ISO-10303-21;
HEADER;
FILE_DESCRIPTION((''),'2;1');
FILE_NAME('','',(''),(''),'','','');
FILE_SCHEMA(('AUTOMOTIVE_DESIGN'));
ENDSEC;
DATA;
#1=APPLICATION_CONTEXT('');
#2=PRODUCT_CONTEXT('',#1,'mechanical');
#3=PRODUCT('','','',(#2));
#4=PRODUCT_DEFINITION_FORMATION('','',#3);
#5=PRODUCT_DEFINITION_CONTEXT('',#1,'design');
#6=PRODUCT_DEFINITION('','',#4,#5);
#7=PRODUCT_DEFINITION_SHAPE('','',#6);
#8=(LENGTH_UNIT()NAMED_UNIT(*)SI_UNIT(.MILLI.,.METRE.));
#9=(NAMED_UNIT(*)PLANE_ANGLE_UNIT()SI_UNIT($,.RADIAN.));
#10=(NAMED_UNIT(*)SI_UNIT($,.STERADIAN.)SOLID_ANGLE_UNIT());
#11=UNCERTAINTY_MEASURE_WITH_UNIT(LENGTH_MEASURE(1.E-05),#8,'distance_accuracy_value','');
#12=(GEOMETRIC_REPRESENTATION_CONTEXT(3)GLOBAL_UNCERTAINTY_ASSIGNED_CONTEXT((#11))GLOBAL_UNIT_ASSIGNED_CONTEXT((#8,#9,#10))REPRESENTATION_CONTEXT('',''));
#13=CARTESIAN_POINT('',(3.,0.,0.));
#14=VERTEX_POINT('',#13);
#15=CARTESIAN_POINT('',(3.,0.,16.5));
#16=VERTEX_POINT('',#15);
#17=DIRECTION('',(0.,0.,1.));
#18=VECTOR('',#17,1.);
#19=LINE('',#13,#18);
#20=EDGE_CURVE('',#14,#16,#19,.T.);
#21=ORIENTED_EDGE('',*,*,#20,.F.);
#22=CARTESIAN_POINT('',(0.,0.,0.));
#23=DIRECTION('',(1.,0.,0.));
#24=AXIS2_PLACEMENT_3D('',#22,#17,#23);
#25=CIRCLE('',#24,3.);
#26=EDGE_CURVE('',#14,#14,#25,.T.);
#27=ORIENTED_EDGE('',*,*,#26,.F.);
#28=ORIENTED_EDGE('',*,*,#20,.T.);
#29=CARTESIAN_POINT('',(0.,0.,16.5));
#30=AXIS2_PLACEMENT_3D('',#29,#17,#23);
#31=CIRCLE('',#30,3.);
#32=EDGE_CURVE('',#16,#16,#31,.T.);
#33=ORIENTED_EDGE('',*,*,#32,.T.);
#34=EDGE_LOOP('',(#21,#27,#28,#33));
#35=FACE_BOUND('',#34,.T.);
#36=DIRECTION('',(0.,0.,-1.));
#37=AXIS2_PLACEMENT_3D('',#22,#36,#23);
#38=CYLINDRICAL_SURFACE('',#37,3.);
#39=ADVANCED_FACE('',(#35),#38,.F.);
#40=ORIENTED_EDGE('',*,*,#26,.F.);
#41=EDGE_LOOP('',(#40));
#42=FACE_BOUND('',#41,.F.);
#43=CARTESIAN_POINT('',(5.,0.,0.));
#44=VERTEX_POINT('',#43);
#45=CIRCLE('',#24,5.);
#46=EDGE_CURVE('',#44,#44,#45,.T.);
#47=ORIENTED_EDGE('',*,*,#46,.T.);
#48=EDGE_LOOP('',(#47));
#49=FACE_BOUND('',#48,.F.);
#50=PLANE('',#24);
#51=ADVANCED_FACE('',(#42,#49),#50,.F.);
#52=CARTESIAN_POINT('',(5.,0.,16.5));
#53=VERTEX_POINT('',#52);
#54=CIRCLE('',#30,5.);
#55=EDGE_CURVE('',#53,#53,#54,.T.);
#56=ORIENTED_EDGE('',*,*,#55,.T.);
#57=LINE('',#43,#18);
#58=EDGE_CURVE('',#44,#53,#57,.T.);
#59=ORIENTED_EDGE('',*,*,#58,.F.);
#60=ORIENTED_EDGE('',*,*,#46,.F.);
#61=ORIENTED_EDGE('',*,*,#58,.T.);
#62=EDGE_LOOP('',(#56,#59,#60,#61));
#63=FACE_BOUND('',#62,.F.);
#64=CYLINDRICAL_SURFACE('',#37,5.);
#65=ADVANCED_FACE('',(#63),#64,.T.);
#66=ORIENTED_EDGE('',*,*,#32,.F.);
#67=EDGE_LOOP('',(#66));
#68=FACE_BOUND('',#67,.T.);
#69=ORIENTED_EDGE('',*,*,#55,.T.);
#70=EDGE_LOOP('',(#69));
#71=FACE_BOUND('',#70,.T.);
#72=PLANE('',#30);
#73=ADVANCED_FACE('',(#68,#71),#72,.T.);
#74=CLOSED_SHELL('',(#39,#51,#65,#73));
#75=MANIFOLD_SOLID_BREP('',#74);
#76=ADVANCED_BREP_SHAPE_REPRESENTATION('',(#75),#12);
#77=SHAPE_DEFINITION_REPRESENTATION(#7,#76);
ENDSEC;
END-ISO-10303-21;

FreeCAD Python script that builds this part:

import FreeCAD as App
import Part
import Sketcher
Q = App.Units.Quantity

doc = App.newDocument("Part")
body = doc.addObject("PartDesign::Body", "Body")

# Sketch on XY plane
sketch1 = body.newObject("Sketcher::SketchObject", "Sketch")
sketch1.AttachmentSupport = (doc.getObject("XY_Plane"), [""])
sketch1.MapMode = "FlatFace"
sketch1.addGeometry(Part.Circle(App.Vector(0, 0, 0), App.Vector(0, 0, 1), 5), False)
sketch1.addGeometry(Part.Circle(App.Vector(0, 0, 0), App.Vector(0, 0, 1), 3), False)
sketch1.addConstraint(Sketcher.Constraint("Coincident", 0, 3, -1, 1))
sketch1.addConstraint(Sketcher.Constraint("Coincident", 1, 3, -1, 1))
sketch1.addConstraint(Sketcher.Constraint("Diameter", 0, Q("10 mm")))
sketch1.addConstraint(Sketcher.Constraint("Diameter", 1, Q("6 mm")))
pad1 = body.newObject("PartDesign::Pad", "Pad")
pad1.Profile = sketch1
pad1.Length = 16.5

doc.recompute()
